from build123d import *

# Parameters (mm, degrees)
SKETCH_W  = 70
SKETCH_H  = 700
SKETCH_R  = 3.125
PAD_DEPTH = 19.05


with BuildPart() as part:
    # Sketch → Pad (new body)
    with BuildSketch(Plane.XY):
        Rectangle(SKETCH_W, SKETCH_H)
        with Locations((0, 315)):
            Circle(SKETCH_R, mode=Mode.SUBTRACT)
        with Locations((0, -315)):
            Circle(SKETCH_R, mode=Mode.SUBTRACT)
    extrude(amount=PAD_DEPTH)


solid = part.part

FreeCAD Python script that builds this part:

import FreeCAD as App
import Part
import Sketcher
Q = App.Units.Quantity


def add_polygon(sketch, points):
    """Adds a closed chain of lines whose ends are joined by coincident constraints."""
    first, n = sketch.GeometryCount, len(points)
    for a, b in zip(points, points[1:] + points[:1]):
        sketch.addGeometry(Part.LineSegment(App.Vector(*a, 0), App.Vector(*b, 0)), False)
    for i in range(n):
        sketch.addConstraint(Sketcher.Constraint("Coincident", first + i, 2, first + (i + 1) % n, 1))

doc = App.newDocument("Part")
body = doc.addObject("PartDesign::Body", "Body")

# Sketch on XY plane
sketch1 = doc.addObject("Sketcher::SketchObject", "Sketch")
body.addObject(sketch1)
sketch1.AttachmentSupport = (doc.XY_Plane, [""])
sketch1.MapMode = "FlatFace"
add_polygon(sketch1, [(-35, 350), (-35, -350), (35, -350), (35, 350)])  # lines 0-3
sketch1.addGeometry(Part.Circle(App.Vector(0, -315, 0), App.Vector(0, 0, 1), 3.125), False)  # 4
sketch1.addGeometry(Part.Circle(App.Vector(0, 315, 0), App.Vector(0, 0, 1), 3.125), False)  # 5
sketch1.addConstraint([
    Sketcher.Constraint("Vertical", 0),
    Sketcher.Constraint("Horizontal", 1),
    Sketcher.Constraint("Vertical", 2),
    Sketcher.Constraint("Horizontal", 3),
    Sketcher.Constraint("Equal", 4, 5),
    Sketcher.Constraint("Symmetric", 4, 3, 5, 3, -1, 1),
    Sketcher.Constraint("Symmetric", 0, 2, 2, 2, -1, 1),
    Sketcher.Constraint("PointOnObject", 4, 3, -2),
    Sketcher.Constraint("Diameter", 4, Q("6.25 mm")),
    Sketcher.Constraint("DistanceX", 1, 1, 1, 2, Q("70 mm")),
    Sketcher.Constraint("DistanceY", 0, 2, 0, 1, Q("700 mm")),
    Sketcher.Constraint("DistanceY", 4, 3, -1, 1, Q("315 mm")),
])
pad1 = doc.addObject("PartDesign::Pad", "Pad")
body.addObject(pad1)
pad1.Profile = sketch1
pad1.Length = 19.05

doc.recompute()
